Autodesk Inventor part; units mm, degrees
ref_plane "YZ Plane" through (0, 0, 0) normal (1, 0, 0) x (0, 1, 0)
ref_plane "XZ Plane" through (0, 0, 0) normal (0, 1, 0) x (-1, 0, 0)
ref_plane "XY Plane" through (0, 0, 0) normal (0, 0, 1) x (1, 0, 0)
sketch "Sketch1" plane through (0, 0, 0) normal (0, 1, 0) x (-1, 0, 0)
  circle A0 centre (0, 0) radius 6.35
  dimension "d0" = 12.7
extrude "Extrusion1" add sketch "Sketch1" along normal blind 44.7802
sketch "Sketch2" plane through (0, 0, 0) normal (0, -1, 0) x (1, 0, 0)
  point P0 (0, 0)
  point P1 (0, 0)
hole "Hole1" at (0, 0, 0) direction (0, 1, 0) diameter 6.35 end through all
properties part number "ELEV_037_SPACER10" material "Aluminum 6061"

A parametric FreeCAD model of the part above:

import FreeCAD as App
import Part
import Sketcher
Q = App.Units.Quantity

doc = App.newDocument("Part")
params = doc.addObject("Spreadsheet::Sheet", "Params")
for row, (alias, value) in enumerate([
    ("sketch1_diameter", "0.5 in"),
    ("pad1_length", "1.763 in"),
    ("sketch2_diameter", "0.25 in"),
    ("hole_diameter", "0.25 in"),
], start=1):
    params.set(f"A{row}", alias)
    params.set(f"B{row}", "=" + value)
    params.setAlias(f"B{row}", alias)

body = doc.addObject("PartDesign::Body", "Body")

sketch1 = body.newObject("Sketcher::SketchObject", "Sketch")
sketch1.AttachmentSupport = (doc.getObject("XZ_Plane"), [""])
sketch1.MapMode = "FlatFace"
sketch1.addGeometry(Part.Circle(App.Vector(0, 0, 0), App.Vector(0, 0, 1), 6), False)
sketch1.addConstraint(Sketcher.Constraint("Coincident", 0, 3, -1, 1))
sketch1.addConstraint(Sketcher.Constraint("Diameter", 0, Q("0.5 in")))
sketch1.setExpression("Constraints[1]", "Params.sketch1_diameter")
pad1 = body.newObject("PartDesign::Pad", "Pad")
pad1.Profile = sketch1
pad1.setExpression("Length", "Params.pad1_length")
pad1.Reversed = True

sketch2 = body.newObject("Sketcher::SketchObject", "Sketch001")
sketch2.AttachmentSupport = (doc.getObject("XZ_Plane"), [""])
sketch2.MapMode = "FlatFace"
sketch2.addGeometry(Part.Circle(App.Vector(0, 0, 0), App.Vector(0, 0, 1), 3.2), False)
sketch2.addConstraint(Sketcher.Constraint("Coincident", 0, 3, -1, 1))
sketch2.addConstraint(Sketcher.Constraint("Diameter", 0, Q("0.25 in")))
sketch2.setExpression("Constraints[1]", "Params.sketch2_diameter")
doc.recompute()
hole = body.newObject("PartDesign::Hole", "Hole")
hole.Profile = sketch2
hole.ThreadType = "None"
hole.setExpression("Diameter", "Params.hole_diameter")
hole.DepthType = "ThroughAll"

doc.recompute()
